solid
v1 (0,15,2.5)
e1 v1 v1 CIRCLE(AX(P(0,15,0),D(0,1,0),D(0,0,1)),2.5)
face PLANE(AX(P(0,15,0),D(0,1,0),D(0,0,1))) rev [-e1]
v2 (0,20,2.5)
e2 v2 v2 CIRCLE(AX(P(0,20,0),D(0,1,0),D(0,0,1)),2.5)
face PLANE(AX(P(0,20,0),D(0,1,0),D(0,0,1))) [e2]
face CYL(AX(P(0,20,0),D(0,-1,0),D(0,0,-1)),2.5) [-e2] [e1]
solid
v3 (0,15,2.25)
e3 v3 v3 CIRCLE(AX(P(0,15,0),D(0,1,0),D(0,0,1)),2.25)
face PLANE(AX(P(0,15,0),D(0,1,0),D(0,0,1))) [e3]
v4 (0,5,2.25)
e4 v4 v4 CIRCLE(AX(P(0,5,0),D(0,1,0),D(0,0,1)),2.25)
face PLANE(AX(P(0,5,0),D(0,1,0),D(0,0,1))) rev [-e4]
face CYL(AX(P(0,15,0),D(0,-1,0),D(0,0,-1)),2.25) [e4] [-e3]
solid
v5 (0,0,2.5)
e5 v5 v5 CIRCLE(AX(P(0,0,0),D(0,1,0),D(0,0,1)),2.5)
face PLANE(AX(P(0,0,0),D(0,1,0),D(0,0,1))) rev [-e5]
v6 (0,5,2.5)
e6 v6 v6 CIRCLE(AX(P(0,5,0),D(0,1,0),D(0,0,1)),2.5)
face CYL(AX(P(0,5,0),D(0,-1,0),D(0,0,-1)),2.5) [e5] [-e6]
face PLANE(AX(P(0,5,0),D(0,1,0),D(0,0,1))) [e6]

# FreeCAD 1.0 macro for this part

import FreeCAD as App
import Part
import Sketcher
from FreeCAD import Vector
Q = App.Units.Quantity

doc = App.newDocument("Part")
body = doc.addObject("PartDesign::Body", "Body")

sketch1 = body.newObject("Sketcher::SketchObject", "Sketch")
sketch1.AttachmentSupport = (doc.getObject("XZ_Plane"), [""])
sketch1.MapMode = "FlatFace"
sketch1.addGeometry(Part.Circle(Vector(0, 0, 0), Vector(0, 0, 1), 2.5), False)
sketch1.addConstraint([
    Sketcher.Constraint("Coincident", 0, 3, -1, 1),
    Sketcher.Constraint("Diameter", 0, Q("5 mm")),
])
pad1 = body.newObject("PartDesign::Pad", "Pad")
pad1.Profile = sketch1
pad1.Length = 5
pad1.Reversed = True
body2 = doc.addObject("PartDesign::Body", "Body001")

sketch2 = body2.newObject("Sketcher::SketchObject", "Sketch001")
sketch2.AttachmentSupport = (doc.getObject("XZ_Plane001"), [""])
sketch2.MapMode = "FlatFace"
sketch2.AttachmentOffset = App.Placement(Vector(0, 0, -5), App.Rotation())
sketch2.addGeometry(Part.Circle(Vector(0, 0, 0), Vector(0, 0, 1), 2.2), False)
sketch2.addConstraint([
    Sketcher.Constraint("Coincident", 0, 3, -1, 1),
    Sketcher.Constraint("Diameter", 0, Q("4.5 mm")),
])
pad2 = body2.newObject("PartDesign::Pad", "Pad001")
pad2.Profile = sketch2
pad2.Length = 10
pad2.Reversed = True
body3 = doc.addObject("PartDesign::Body", "Body002")

sketch3 = body3.newObject("Sketcher::SketchObject", "Sketch002")
sketch3.AttachmentSupport = (doc.getObject("XZ_Plane002"), [""])
sketch3.MapMode = "FlatFace"
sketch3.AttachmentOffset = App.Placement(Vector(0, 0, -15), App.Rotation())
sketch3.addGeometry(Part.Circle(Vector(0, 0, 0), Vector(0, 0, 1), 2.5), False)
sketch3.addConstraint([
    Sketcher.Constraint("Coincident", 0, 3, -1, 1),
    Sketcher.Constraint("Diameter", 0, Q("5 mm")),
])
pad3 = body3.newObject("PartDesign::Pad", "Pad002")
pad3.Profile = sketch3
pad3.Length = 5
pad3.Reversed = True

doc.recompute()
